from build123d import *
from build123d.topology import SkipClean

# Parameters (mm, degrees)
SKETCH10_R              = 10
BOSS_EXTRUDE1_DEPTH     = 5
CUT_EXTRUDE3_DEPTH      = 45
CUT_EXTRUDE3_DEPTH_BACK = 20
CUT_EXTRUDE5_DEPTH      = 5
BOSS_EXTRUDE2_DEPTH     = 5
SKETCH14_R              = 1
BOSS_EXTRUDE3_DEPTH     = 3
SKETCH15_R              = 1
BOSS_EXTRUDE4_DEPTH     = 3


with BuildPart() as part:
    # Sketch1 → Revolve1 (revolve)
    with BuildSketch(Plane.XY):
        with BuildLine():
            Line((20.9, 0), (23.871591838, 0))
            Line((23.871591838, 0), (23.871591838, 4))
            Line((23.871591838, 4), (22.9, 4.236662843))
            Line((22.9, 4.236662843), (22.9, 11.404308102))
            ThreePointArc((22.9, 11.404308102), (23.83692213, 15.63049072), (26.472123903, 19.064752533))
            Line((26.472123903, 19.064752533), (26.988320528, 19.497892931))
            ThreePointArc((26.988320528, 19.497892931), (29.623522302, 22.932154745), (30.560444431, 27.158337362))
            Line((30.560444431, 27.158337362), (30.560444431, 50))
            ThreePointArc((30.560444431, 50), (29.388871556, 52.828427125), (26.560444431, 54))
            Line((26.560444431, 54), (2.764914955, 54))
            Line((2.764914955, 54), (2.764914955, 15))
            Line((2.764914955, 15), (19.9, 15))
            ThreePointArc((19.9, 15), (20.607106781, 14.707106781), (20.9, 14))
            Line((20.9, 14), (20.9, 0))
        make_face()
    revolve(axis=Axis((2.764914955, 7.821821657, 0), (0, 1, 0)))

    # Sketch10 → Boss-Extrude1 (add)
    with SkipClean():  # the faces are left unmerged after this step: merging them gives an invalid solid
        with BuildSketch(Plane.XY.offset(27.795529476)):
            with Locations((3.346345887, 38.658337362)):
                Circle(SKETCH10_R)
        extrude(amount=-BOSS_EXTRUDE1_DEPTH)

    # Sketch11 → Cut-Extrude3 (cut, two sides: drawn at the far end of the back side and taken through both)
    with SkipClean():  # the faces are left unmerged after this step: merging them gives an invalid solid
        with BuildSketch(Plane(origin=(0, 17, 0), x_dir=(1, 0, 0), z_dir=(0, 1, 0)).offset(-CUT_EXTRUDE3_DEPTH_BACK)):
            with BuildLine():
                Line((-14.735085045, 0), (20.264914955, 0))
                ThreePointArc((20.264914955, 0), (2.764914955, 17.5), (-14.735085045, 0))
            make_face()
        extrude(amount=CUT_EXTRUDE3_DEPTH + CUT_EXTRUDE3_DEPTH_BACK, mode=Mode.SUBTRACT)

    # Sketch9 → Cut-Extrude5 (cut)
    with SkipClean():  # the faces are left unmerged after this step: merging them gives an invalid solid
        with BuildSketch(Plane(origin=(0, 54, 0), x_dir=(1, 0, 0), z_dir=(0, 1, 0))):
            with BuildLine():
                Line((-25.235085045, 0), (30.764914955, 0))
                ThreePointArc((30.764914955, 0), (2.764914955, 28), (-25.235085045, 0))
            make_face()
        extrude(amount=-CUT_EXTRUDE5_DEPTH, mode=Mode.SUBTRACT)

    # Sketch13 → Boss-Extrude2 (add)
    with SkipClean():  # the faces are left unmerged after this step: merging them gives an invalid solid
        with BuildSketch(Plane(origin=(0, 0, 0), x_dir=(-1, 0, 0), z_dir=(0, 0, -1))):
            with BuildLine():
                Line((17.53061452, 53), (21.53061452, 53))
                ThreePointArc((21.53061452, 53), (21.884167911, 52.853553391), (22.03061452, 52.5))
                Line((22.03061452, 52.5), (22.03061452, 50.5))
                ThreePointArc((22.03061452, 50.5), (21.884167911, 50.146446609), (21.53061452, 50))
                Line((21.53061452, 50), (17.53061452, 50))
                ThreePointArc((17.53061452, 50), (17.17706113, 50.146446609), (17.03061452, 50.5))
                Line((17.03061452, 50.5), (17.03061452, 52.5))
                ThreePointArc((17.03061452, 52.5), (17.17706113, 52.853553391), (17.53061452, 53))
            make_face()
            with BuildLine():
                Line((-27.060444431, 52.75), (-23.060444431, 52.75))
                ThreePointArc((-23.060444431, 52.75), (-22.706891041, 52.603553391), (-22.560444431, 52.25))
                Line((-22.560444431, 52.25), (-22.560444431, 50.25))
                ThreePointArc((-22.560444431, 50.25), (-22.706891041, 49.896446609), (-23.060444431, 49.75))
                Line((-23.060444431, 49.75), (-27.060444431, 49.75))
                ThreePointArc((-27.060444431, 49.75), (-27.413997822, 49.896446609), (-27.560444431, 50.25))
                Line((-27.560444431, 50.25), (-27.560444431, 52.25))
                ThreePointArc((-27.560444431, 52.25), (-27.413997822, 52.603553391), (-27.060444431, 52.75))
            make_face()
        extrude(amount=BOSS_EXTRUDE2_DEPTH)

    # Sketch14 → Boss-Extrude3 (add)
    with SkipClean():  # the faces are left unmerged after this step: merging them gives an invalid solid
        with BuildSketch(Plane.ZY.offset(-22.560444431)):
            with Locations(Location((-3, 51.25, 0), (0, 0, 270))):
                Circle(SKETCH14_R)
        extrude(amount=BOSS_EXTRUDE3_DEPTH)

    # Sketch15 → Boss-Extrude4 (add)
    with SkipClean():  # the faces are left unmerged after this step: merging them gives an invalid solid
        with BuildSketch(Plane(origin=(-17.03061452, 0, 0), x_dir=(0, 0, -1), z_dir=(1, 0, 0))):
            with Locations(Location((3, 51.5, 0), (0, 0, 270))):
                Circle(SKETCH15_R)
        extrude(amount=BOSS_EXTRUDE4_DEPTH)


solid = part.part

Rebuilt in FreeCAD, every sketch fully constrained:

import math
import FreeCAD as App
import Part
import Sketcher

V = App.Vector
Q = App.Units.Quantity

doc = App.newDocument("Part")
body = doc.addObject("PartDesign::Body", "Body")

sketch1 = body.newObject("Sketcher::SketchObject", "Sketch")
sketch1.AttachmentSupport = (doc.getObject("XY_Plane"), [""])
sketch1.MapMode = "FlatFace"
sketch1.addGeometry(Part.LineSegment(V(20.9, 0, 0), V(23.9, 0, 0)), False)
sketch1.addGeometry(Part.LineSegment(V(23.9, 0, 0), V(23.9, 4, 0)), False)
sketch1.addGeometry(Part.LineSegment(V(23.9, 4, 0), V(22.9, 4.2, 0)), False)
sketch1.addGeometry(Part.LineSegment(V(22.9, 4.2, 0), V(22.9, 11.4, 0)), False)
sketch1.addGeometry(Part.ArcOfCircle(Part.Circle(V(32.9, 11.4, 0), V(0, 0, 1), 10), math.radians(130), math.radians(180)), False)
sketch1.addGeometry(Part.LineSegment(V(26.5, 19.1, 0), V(27, 19.5, 0)), False)
sketch1.addGeometry(Part.ArcOfCircle(Part.Circle(V(20.6, 27.2, 0), V(0, 0, 1), 10), math.radians(-50), math.radians(0)), False)
sketch1.addGeometry(Part.LineSegment(V(30.6, 27.2, 0), V(30.6, 50, 0)), False)
sketch1.addGeometry(Part.ArcOfCircle(Part.Circle(V(26.6, 50, 0), V(0, 0, 1), 4), math.radians(0), math.radians(90)), False)
sketch1.addGeometry(Part.LineSegment(V(26.6, 54, 0), V(2.8, 54, 0)), False)
sketch1.addGeometry(Part.LineSegment(V(2.8, 54, 0), V(2.8, 15, 0)), False)
sketch1.addGeometry(Part.LineSegment(V(2.8, 15, 0), V(19.9, 15, 0)), False)
sketch1.addGeometry(Part.ArcOfCircle(Part.Circle(V(19.9, 14, 0), V(0, 0, 1), 1), math.radians(0), math.radians(90)), False)
sketch1.addGeometry(Part.LineSegment(V(20.9, 14, 0), V(20.9, 0, 0)), False)
sketch1.addGeometry(Part.LineSegment(V(2.8, 0, 0), V(2.8, 54, 0)), True)
sketch1.addConstraint(Sketcher.Constraint("Coincident", 0, 2, 1, 1))
sketch1.addConstraint(Sketcher.Constraint("Coincident", 1, 2, 2, 1))
sketch1.addConstraint(Sketcher.Constraint("Coincident", 2, 2, 3, 1))
sketch1.addConstraint(Sketcher.Constraint("Tangent", 3, 2, 4, 2))
sketch1.addConstraint(Sketcher.Constraint("Tangent", 4, 1, 5, 1))
sketch1.addConstraint(Sketcher.Constraint("Tangent", 5, 2, 6, 1))
sketch1.addConstraint(Sketcher.Constraint("Tangent", 6, 2, 7, 1))
sketch1.addConstraint(Sketcher.Constraint("Tangent", 7, 2, 8, 1))
sketch1.addConstraint(Sketcher.Constraint("Tangent", 8, 2, 9, 1))
sketch1.addConstraint(Sketcher.Constraint("Coincident", 9, 2, 10, 1))
sketch1.addConstraint(Sketcher.Constraint("Coincident", 10, 2, 11, 1))
sketch1.addConstraint(Sketcher.Constraint("Tangent", 11, 2, 12, 2))
sketch1.addConstraint(Sketcher.Constraint("Tangent", 12, 1, 13, 1))
sketch1.addConstraint(Sketcher.Constraint("Coincident", 13, 2, 0, 1))
sketch1.addConstraint(Sketcher.Constraint("Horizontal", 0))
sketch1.addConstraint(Sketcher.Constraint("Vertical", 1))
sketch1.addConstraint(Sketcher.Constraint("Vertical", 3))
sketch1.addConstraint(Sketcher.Constraint("Vertical", 7))
sketch1.addConstraint(Sketcher.Constraint("Horizontal", 9))
sketch1.addConstraint(Sketcher.Constraint("Vertical", 10))
sketch1.addConstraint(Sketcher.Constraint("Horizontal", 11))
sketch1.addConstraint(Sketcher.Constraint("Vertical", 13))
sketch1.addConstraint(Sketcher.Constraint("Vertical", 14))
sketch1.addConstraint(Sketcher.Constraint("Coincident", 14, 2, 9, 2))
sketch1.addConstraint(Sketcher.Constraint("Equal", 4, 6))
sketch1.addConstraint(Sketcher.Constraint("PointOnObject", 0, 2, -1))
sketch1.addConstraint(Sketcher.Constraint("PointOnObject", 14, 1, -1))
sketch1.addConstraint(Sketcher.Constraint("Radius", 4, 10.0))
sketch1.addConstraint(Sketcher.Constraint("Radius", 8, 4.0))
sketch1.addConstraint(Sketcher.Constraint("Radius", 12, 1.0))
sketch1.addConstraint(Sketcher.Constraint("DistanceY", 1, 1, 1, 2, 4.0))
sketch1.addConstraint(Sketcher.Constraint("DistanceY", 10, 2, 10, 1, 39.0))
sketch1.addConstraint(Sketcher.Constraint("DistanceY", 13, 2, 13, 1, 14.0))
sketch1.addConstraint(Sketcher.Constraint("Angle", 5, Q("40 deg")))
sketch1.addConstraint(Sketcher.Constraint("Distance", 2, 1.0))
sketch1.addConstraint(Sketcher.Constraint("DistanceX", 12, 3, 4, 3, 13.0))
sketch1.addConstraint(Sketcher.Constraint("DistanceX", -1, 1, 4, 3, 32.9))
sketch1.addConstraint(Sketcher.Constraint("DistanceX", 0, 1, 0, 2, 2.971592))
sketch1.addConstraint(Sketcher.Constraint("DistanceX", 9, 2, 9, 1, 23.795529))
sketch1.addConstraint(Sketcher.Constraint("DistanceX", 11, 1, 11, 2, 17.135085))
sketch1.addConstraint(Sketcher.Constraint("DistanceY", 3, 1, 3, 2, 7.167645))
revolution = body.newObject("PartDesign::Revolution", "Revolution")
revolution.Profile = sketch1
revolution.ReferenceAxis = (sketch1, ["Axis0"])
revolution.Angle = 360

sketch2 = body.newObject("Sketcher::SketchObject", "Sketch001")
sketch2.AttachmentSupport = (doc.getObject("XY_Plane"), [""])
sketch2.MapMode = "FlatFace"
sketch2.AttachmentOffset = App.Placement(V(0, 0, 27.795529), App.Rotation())
sketch2.addGeometry(Part.Circle(V(3, 39, 0), V(0, 0, 1), 10), False)
sketch2.addConstraint(Sketcher.Constraint("Diameter", 0, 20.0))
sketch2.addConstraint(Sketcher.Constraint("DistanceX", -1, 1, 0, 3, 3.346346))
sketch2.addConstraint(Sketcher.Constraint("DistanceY", -1, 1, 0, 3, 38.658337))
pad1 = body.newObject("PartDesign::Pad", "Pad")
pad1.Profile = sketch2
pad1.Length = 5
pad1.Reversed = True

sketch3 = body.newObject("Sketcher::SketchObject", "Sketch002")
sketch3.AttachmentSupport = (doc.getObject("XZ_Plane"), [""])
sketch3.MapMode = "FlatFace"
sketch3.AttachmentOffset = App.Placement(V(0, 0, -17), App.Rotation())
sketch3.addGeometry(Part.LineSegment(V(-15, 0, 0), V(20, 0, 0)), False)
sketch3.addGeometry(Part.ArcOfCircle(Part.Circle(V(3, 0, 0), V(0, 0, 1), 18), math.radians(180), math.radians(360)), False)
sketch3.addConstraint(Sketcher.Constraint("Coincident", 0, 1, 1, 1))
sketch3.addConstraint(Sketcher.Constraint("Coincident", 1, 2, 0, 2))
sketch3.addConstraint(Sketcher.Constraint("Horizontal", 0))
sketch3.addConstraint(Sketcher.Constraint("PointOnObject", 1, 3, -1))
sketch3.addConstraint(Sketcher.Constraint("PointOnObject", 0, 1, -1))
sketch3.addConstraint(Sketcher.Constraint("Radius", 1, 17.5))
sketch3.addConstraint(Sketcher.Constraint("DistanceX", -1, 1, 1, 3, 2.764915))
pocket1 = body.newObject("PartDesign::Pocket", "Pocket")
pocket1.Profile = sketch3
pocket1.Type = "ThroughAll"
pocket1.Midplane = True

sketch4 = body.newObject("Sketcher::SketchObject", "Sketch003")
sketch4.AttachmentSupport = (doc.getObject("XZ_Plane"), [""])
sketch4.MapMode = "FlatFace"
sketch4.AttachmentOffset = App.Placement(V(0, 0, -54), App.Rotation())
sketch4.addGeometry(Part.LineSegment(V(-25, 0, 0), V(31, 0, 0)), False)
sketch4.addGeometry(Part.ArcOfCircle(Part.Circle(V(3, 0, 0), V(0, 0, 1), 28), math.radians(180), math.radians(360)), False)
sketch4.addConstraint(Sketcher.Constraint("Coincident", 0, 1, 1, 1))
sketch4.addConstraint(Sketcher.Constraint("Coincident", 1, 2, 0, 2))
sketch4.addConstraint(Sketcher.Constraint("Horizontal", 0))
sketch4.addConstraint(Sketcher.Constraint("PointOnObject", 1, 3, -1))
sketch4.addConstraint(Sketcher.Constraint("PointOnObject", 0, 1, -1))
sketch4.addConstraint(Sketcher.Constraint("Radius", 1, 28.0))
sketch4.addConstraint(Sketcher.Constraint("DistanceX", -1, 1, 1, 3, 2.764915))
pocket2 = body.newObject("PartDesign::Pocket", "Pocket001")
pocket2.Profile = sketch4
pocket2.Length = 5
pocket2.Reversed = True

sketch5 = body.newObject("Sketcher::SketchObject", "Sketch004")
sketch5.AttachmentSupport = (doc.getObject("XY_Plane"), [""])
sketch5.MapMode = "FlatFace"
sketch5.addGeometry(Part.LineSegment(V(-21.53, 53, 0), V(-17.53, 53, 0)), False)
sketch5.addGeometry(Part.ArcOfCircle(Part.Circle(V(-17.53, 52.5, 0), V(0, 0, 1), 0.5), math.radians(0), math.radians(90)), False)
sketch5.addGeometry(Part.LineSegment(V(-17.03, 52.5, 0), V(-17.03, 50.5, 0)), False)
sketch5.addGeometry(Part.ArcOfCircle(Part.Circle(V(-17.53, 50.5, 0), V(0, 0, 1), 0.5), math.radians(-90), math.radians(0)), False)
sketch5.addGeometry(Part.LineSegment(V(-17.53, 50, 0), V(-21.53, 50, 0)), False)
sketch5.addGeometry(Part.ArcOfCircle(Part.Circle(V(-21.53, 50.5, 0), V(0, 0, 1), 0.5), math.radians(180), math.radians(270)), False)
sketch5.addGeometry(Part.LineSegment(V(-22.03, 50.5, 0), V(-22.03, 52.5, 0)), False)
sketch5.addGeometry(Part.ArcOfCircle(Part.Circle(V(-21.53, 52.5, 0), V(0, 0, 1), 0.5), math.radians(90), math.radians(180)), False)
sketch5.addGeometry(Part.LineSegment(V(23.06, 52.75, 0), V(27.06, 52.75, 0)), False)
sketch5.addGeometry(Part.ArcOfCircle(Part.Circle(V(27.06, 52.25, 0), V(0, 0, 1), 0.5), math.radians(0), math.radians(90)), False)
sketch5.addGeometry(Part.LineSegment(V(27.56, 52.25, 0), V(27.56, 50.25, 0)), False)
sketch5.addGeometry(Part.ArcOfCircle(Part.Circle(V(27.06, 50.25, 0), V(0, 0, 1), 0.5), math.radians(-90), math.radians(0)), False)
sketch5.addGeometry(Part.LineSegment(V(27.06, 49.75, 0), V(23.06, 49.75, 0)), False)
sketch5.addGeometry(Part.ArcOfCircle(Part.Circle(V(23.06, 50.25, 0), V(0, 0, 1), 0.5), math.radians(180), math.radians(270)), False)
sketch5.addGeometry(Part.LineSegment(V(22.56, 50.25, 0), V(22.56, 52.25, 0)), False)
sketch5.addGeometry(Part.ArcOfCircle(Part.Circle(V(23.06, 52.25, 0), V(0, 0, 1), 0.5), math.radians(90), math.radians(180)), False)
sketch5.addConstraint(Sketcher.Constraint("Tangent", 0, 2, 1, 2))
sketch5.addConstraint(Sketcher.Constraint("Tangent", 1, 1, 2, 1))
sketch5.addConstraint(Sketcher.Constraint("Tangent", 2, 2, 3, 2))
sketch5.addConstraint(Sketcher.Constraint("Tangent", 3, 1, 4, 1))
sketch5.addConstraint(Sketcher.Constraint("Tangent", 4, 2, 5, 2))
sketch5.addConstraint(Sketcher.Constraint("Tangent", 5, 1, 6, 1))
sketch5.addConstraint(Sketcher.Constraint("Tangent", 6, 2, 7, 2))
sketch5.addConstraint(Sketcher.Constraint("Tangent", 7, 1, 0, 1))
sketch5.addConstraint(Sketcher.Constraint("Tangent", 8, 2, 9, 2))
sketch5.addConstraint(Sketcher.Constraint("Tangent", 9, 1, 10, 1))
sketch5.addConstraint(Sketcher.Constraint("Tangent", 10, 2, 11, 2))
sketch5.addConstraint(Sketcher.Constraint("Tangent", 11, 1, 12, 1))
sketch5.addConstraint(Sketcher.Constraint("Tangent", 12, 2, 13, 2))
sketch5.addConstraint(Sketcher.Constraint("Tangent", 13, 1, 14, 1))
sketch5.addConstraint(Sketcher.Constraint("Tangent", 14, 2, 15, 2))
sketch5.addConstraint(Sketcher.Constraint("Tangent", 15, 1, 8, 1))
sketch5.addConstraint(Sketcher.Constraint("Horizontal", 0))
sketch5.addConstraint(Sketcher.Constraint("Vertical", 2))
sketch5.addConstraint(Sketcher.Constraint("Horizontal", 4))
sketch5.addConstraint(Sketcher.Constraint("Vertical", 6))
sketch5.addConstraint(Sketcher.Constraint("Horizontal", 8))
sketch5.addConstraint(Sketcher.Constraint("Vertical", 10))
sketch5.addConstraint(Sketcher.Constraint("Horizontal", 12))
sketch5.addConstraint(Sketcher.Constraint("Vertical", 14))
sketch5.addConstraint(Sketcher.Constraint("Equal", 1, 3))
sketch5.addConstraint(Sketcher.Constraint("Equal", 3, 5))
sketch5.addConstraint(Sketcher.Constraint("Equal", 5, 7))
sketch5.addConstraint(Sketcher.Constraint("Equal", 7, 9))
sketch5.addConstraint(Sketcher.Constraint("Equal", 9, 11))
sketch5.addConstraint(Sketcher.Constraint("Equal", 11, 13))
sketch5.addConstraint(Sketcher.Constraint("Equal", 13, 15))
sketch5.addConstraint(Sketcher.Constraint("Equal", 4, 8))
sketch5.addConstraint(Sketcher.Constraint("Equal", 6, 10))
sketch5.addConstraint(Sketcher.Constraint("Radius", 1, 0.5))
sketch5.addConstraint(Sketcher.Constraint("DistanceX", 0, 1, 0, 2, 4.0))
sketch5.addConstraint(Sketcher.Constraint("DistanceY", 2, 2, 2, 1, 2.0))
sketch5.addConstraint(Sketcher.Constraint("DistanceY", -1, 1, 0, 2, 53.0))
sketch5.addConstraint(Sketcher.Constraint("DistanceY", -1, 1, 9, 3, 52.25))
sketch5.addConstraint(Sketcher.Constraint("DistanceX", 1, 3, 9, 3, 44.591059))
sketch5.addConstraint(Sketcher.Constraint("DistanceX", 1, 3, -1, 1, 17.530615))
pad2 = body.newObject("PartDesign::Pad", "Pad001")
pad2.Profile = sketch5
pad2.Length = 5
pad2.Reversed = True

sketch6 = body.newObject("Sketcher::SketchObject", "Sketch005")
sketch6.AttachmentSupport = (doc.getObject("YZ_Plane"), [""])
sketch6.MapMode = "FlatFace"
sketch6.AttachmentOffset = App.Placement(V(0, 0, 22.560444), App.Rotation())
sketch6.addGeometry(Part.Circle(V(51.2, -3, 0), V(0, 0, 1), 1), False)
sketch6.addConstraint(Sketcher.Constraint("Diameter", 0, 2.0))
sketch6.addConstraint(Sketcher.Constraint("DistanceY", 0, 3, -1, 1, 3.0))
sketch6.addConstraint(Sketcher.Constraint("DistanceX", -1, 1, 0, 3, 51.25))
pad3 = body.newObject("PartDesign::Pad", "Pad002")
pad3.Profile = sketch6
pad3.Length = 3
pad3.Reversed = True

sketch7 = body.newObject("Sketcher::SketchObject", "Sketch006")
sketch7.AttachmentSupport = (doc.getObject("YZ_Plane"), [""])
sketch7.MapMode = "FlatFace"
sketch7.AttachmentOffset = App.Placement(V(0, 0, -17.030615), App.Rotation())
sketch7.addGeometry(Part.Circle(V(51.5, -3, 0), V(0, 0, 1), 1), False)
sketch7.addConstraint(Sketcher.Constraint("Diameter", 0, 2.0))
sketch7.addConstraint(Sketcher.Constraint("DistanceY", 0, 3, -1, 1, 3.0))
sketch7.addConstraint(Sketcher.Constraint("DistanceX", -1, 1, 0, 3, 51.5))
pad4 = body.newObject("PartDesign::Pad", "Pad003")
pad4.Profile = sketch7
pad4.Length = 3

doc.recompute()
